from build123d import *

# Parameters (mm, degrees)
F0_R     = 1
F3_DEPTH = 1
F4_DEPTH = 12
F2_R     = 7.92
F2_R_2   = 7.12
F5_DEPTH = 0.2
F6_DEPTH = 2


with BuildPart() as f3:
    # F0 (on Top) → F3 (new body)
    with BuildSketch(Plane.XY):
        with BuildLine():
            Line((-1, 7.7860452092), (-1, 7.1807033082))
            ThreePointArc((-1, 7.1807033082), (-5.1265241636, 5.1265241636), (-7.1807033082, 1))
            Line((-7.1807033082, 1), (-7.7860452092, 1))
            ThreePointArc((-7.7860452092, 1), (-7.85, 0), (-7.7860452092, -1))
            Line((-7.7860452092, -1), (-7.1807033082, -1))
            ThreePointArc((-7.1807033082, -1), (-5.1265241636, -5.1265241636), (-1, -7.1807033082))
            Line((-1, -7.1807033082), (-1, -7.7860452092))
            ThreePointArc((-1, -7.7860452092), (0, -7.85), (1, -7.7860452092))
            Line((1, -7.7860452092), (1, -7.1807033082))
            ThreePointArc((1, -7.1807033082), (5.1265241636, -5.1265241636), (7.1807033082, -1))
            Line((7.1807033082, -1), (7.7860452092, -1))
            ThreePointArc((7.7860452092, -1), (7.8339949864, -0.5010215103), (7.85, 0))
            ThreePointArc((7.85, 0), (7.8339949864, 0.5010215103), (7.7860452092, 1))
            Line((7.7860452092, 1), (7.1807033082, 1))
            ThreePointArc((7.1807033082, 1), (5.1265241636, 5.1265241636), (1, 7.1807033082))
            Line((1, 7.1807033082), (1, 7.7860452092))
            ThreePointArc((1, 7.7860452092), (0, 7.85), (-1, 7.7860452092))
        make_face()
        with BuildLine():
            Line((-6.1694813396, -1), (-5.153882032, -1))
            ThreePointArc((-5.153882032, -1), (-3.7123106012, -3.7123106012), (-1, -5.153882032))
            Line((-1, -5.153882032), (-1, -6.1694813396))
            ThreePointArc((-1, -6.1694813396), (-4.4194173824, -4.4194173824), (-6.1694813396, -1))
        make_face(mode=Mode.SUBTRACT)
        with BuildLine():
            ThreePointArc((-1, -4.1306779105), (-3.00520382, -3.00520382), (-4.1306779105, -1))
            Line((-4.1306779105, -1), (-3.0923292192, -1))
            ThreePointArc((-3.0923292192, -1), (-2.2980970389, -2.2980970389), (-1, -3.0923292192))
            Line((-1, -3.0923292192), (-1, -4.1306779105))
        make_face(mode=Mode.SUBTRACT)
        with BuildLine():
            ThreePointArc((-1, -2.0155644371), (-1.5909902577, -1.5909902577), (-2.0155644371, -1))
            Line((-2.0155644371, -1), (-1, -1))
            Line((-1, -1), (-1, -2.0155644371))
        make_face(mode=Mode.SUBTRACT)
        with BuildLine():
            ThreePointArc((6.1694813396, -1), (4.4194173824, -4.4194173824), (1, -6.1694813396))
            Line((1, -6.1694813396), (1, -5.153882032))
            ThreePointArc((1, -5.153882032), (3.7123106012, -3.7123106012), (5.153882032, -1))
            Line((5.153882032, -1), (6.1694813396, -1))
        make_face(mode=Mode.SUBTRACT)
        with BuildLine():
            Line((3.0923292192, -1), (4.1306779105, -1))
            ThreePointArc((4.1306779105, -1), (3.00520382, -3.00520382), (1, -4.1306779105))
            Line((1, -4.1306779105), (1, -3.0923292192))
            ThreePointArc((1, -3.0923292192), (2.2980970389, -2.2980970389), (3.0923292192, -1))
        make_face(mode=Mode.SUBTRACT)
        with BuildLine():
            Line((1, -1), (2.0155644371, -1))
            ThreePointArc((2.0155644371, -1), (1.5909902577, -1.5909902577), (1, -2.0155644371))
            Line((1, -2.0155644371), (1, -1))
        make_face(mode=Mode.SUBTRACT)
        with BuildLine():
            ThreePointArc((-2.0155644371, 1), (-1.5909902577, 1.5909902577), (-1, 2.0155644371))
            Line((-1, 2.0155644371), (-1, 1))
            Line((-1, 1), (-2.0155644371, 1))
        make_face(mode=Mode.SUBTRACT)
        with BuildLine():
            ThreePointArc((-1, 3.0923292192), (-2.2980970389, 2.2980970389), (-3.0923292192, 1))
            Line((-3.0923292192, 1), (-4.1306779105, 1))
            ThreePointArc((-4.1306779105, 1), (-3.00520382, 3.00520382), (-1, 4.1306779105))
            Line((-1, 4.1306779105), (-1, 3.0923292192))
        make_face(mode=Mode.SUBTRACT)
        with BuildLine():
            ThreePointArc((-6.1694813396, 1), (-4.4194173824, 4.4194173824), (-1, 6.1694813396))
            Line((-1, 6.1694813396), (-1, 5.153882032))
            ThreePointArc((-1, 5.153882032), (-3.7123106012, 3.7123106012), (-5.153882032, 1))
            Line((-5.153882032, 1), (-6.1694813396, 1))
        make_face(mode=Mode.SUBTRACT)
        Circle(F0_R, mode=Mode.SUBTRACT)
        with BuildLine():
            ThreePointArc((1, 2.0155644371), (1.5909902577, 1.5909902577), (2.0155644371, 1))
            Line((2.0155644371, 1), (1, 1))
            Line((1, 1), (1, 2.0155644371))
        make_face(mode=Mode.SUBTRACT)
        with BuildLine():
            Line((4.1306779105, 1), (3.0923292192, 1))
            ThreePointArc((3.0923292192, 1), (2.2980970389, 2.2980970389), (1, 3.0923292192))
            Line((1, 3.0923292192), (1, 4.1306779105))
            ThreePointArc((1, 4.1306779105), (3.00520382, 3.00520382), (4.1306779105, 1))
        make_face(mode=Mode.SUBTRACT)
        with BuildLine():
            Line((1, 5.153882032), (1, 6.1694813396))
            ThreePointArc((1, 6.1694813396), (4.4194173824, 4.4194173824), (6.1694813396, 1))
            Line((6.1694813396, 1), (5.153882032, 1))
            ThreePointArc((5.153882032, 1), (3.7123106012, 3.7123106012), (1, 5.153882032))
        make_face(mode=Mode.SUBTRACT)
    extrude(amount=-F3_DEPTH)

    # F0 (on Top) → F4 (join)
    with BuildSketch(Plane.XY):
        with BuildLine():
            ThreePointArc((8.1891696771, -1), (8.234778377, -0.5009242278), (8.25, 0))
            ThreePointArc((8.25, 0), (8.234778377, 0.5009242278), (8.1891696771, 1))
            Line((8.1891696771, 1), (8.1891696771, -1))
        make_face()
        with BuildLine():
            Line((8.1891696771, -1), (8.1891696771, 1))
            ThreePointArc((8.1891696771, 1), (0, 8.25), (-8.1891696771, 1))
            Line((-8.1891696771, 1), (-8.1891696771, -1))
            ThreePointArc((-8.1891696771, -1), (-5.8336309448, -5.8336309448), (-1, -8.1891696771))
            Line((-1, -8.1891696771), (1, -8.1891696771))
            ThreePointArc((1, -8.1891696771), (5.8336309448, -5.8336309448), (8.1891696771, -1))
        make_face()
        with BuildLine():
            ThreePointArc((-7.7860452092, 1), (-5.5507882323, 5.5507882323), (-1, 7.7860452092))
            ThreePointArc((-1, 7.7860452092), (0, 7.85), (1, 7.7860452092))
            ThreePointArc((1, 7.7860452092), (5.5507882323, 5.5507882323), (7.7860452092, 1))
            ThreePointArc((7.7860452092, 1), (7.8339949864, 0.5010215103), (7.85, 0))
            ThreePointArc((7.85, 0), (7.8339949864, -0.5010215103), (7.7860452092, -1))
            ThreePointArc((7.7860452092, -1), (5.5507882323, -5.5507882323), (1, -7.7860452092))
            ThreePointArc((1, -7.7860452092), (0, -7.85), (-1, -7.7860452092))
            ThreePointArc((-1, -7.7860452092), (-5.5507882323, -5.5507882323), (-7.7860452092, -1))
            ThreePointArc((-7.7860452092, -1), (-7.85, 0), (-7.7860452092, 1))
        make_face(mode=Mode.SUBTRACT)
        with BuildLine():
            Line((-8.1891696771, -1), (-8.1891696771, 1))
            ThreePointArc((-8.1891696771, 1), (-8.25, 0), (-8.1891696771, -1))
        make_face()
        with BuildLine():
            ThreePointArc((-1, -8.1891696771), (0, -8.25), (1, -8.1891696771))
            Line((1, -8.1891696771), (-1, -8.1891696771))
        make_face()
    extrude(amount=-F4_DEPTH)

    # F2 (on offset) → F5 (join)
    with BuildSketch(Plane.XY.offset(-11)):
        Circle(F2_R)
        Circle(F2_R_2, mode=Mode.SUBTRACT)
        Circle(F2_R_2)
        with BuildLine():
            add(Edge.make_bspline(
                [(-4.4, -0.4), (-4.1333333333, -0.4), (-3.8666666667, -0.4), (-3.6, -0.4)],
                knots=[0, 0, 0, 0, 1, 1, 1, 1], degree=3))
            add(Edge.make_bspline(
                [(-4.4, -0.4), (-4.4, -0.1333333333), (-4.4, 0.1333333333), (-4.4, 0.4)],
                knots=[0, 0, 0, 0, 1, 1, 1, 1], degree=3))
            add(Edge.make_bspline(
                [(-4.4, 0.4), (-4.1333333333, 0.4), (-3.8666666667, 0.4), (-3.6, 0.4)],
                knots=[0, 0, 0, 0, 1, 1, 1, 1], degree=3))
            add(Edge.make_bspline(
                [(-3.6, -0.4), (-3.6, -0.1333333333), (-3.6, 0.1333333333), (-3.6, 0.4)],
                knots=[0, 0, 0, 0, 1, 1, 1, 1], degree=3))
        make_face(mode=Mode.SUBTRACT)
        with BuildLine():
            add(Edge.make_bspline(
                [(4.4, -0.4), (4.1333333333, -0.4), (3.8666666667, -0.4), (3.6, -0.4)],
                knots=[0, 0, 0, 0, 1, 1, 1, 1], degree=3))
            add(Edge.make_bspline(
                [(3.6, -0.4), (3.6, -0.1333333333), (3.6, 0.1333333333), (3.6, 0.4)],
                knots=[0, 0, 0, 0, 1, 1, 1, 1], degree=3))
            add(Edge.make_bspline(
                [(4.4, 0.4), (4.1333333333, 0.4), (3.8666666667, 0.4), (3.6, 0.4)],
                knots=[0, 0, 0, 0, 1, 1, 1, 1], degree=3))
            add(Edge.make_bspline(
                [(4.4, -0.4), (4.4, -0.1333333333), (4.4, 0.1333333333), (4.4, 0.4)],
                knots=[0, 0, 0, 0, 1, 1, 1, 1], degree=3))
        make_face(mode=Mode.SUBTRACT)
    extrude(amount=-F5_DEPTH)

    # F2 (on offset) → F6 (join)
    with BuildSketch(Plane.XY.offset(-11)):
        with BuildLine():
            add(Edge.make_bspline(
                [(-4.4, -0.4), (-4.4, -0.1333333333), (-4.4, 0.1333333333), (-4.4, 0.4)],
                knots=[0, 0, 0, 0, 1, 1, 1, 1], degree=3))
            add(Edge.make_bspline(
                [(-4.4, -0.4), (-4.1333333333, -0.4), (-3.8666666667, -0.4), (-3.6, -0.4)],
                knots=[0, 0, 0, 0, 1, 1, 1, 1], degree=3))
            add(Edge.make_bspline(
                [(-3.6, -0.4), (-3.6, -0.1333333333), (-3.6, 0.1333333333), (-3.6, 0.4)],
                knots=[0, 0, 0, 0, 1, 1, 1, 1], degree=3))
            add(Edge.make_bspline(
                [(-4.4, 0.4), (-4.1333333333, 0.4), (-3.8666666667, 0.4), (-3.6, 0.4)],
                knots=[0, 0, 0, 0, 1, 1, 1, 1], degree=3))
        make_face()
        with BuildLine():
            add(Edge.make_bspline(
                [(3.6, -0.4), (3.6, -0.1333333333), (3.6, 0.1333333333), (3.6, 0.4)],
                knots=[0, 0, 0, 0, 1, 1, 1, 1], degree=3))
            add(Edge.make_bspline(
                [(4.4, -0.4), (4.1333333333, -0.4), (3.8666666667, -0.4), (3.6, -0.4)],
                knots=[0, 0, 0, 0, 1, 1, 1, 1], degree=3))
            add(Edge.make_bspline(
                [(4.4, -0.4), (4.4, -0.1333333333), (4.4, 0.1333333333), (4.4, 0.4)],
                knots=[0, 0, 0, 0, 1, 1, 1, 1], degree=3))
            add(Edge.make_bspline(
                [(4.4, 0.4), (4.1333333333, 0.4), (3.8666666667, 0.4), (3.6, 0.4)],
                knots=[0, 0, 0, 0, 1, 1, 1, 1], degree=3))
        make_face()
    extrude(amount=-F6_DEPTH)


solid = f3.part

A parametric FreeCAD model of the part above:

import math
import FreeCAD as App
import Part
import Sketcher

doc = App.newDocument("Part")
body = doc.addObject("PartDesign::Body", "Body")

# Sketch on XY plane
sketch1 = body.newObject("Sketcher::SketchObject", "Sketch")
sketch1.AttachmentSupport = (doc.getObject("XY_Plane"), [""])
sketch1.MapMode = "FlatFace"
sketch1.addGeometry(Part.LineSegment(App.Vector(-1, 7.786045, 0), App.Vector(-1, 7.180703, 0)), False)
sketch1.addGeometry(Part.ArcOfCircle(Part.Circle(App.Vector(0, 0, 0), App.Vector(0, 0, 1), 7.25), math.radians(97.928142), math.radians(172.071858)), False)
sketch1.addGeometry(Part.LineSegment(App.Vector(-7.180703, 1, 0), App.Vector(-7.786045, 1, 0)), False)
sketch1.addGeometry(Part.ArcOfCircle(Part.Circle(App.Vector(0, 0, 0), App.Vector(0, 0, 1), 7.85), math.radians(172.681288), math.radians(187.318712)), False)
sketch1.addGeometry(Part.LineSegment(App.Vector(-7.786045, -1, 0), App.Vector(-7.180703, -1, 0)), False)
sketch1.addGeometry(Part.ArcOfCircle(Part.Circle(App.Vector(0, 0, 0), App.Vector(0, 0, 1), 7.25), math.radians(-172.071858), math.radians(-97.928142)), False)
sketch1.addGeometry(Part.LineSegment(App.Vector(-1, -7.180703, 0), App.Vector(-1, -7.786045, 0)), False)
sketch1.addGeometry(Part.ArcOfCircle(Part.Circle(App.Vector(0, 0, 0), App.Vector(0, 0, 1), 7.85), math.radians(-97.318712), math.radians(-82.681288)), False)
sketch1.addGeometry(Part.LineSegment(App.Vector(1, -7.786045, 0), App.Vector(1, -7.180703, 0)), False)
sketch1.addGeometry(Part.ArcOfCircle(Part.Circle(App.Vector(0, 0, 0), App.Vector(0, 0, 1), 7.25), math.radians(-82.071858), math.radians(-7.928142)), False)
sketch1.addGeometry(Part.LineSegment(App.Vector(7.180703, -1, 0), App.Vector(7.786045, -1, 0)), False)
sketch1.addGeometry(Part.ArcOfCircle(Part.Circle(App.Vector(0, 0, 0), App.Vector(0, 0, 1), 7.85), math.radians(-7.318712), math.radians(0)), False)
sketch1.addGeometry(Part.ArcOfCircle(Part.Circle(App.Vector(0, 0, 0), App.Vector(0, 0, 1), 7.85), math.radians(0), math.radians(7.318712)), False)
sketch1.addGeometry(Part.LineSegment(App.Vector(7.786045, 1, 0), App.Vector(7.180703, 1, 0)), False)
sketch1.addGeometry(Part.ArcOfCircle(Part.Circle(App.Vector(0, 0, 0), App.Vector(0, 0, 1), 7.25), math.radians(7.928142), math.radians(82.071858)), False)
sketch1.addGeometry(Part.LineSegment(App.Vector(1, 7.180703, 0), App.Vector(1, 7.786045, 0)), False)
sketch1.addGeometry(Part.ArcOfCircle(Part.Circle(App.Vector(0, 0, 0), App.Vector(0, 0, 1), 7.85), math.radians(82.681288), math.radians(97.318712)), False)
sketch1.addGeometry(Part.ArcOfCircle(Part.Circle(App.Vector(0, 0, 0), App.Vector(0, 0, 1), 6.25), math.radians(-170.793104), math.radians(-99.206896)), False)
sketch1.addGeometry(Part.LineSegment(App.Vector(-6.169481, -1, 0), App.Vector(-5.153882, -1, 0)), False)
sketch1.addGeometry(Part.ArcOfCircle(Part.Circle(App.Vector(0, 0, 0), App.Vector(0, 0, 1), 5.25), math.radians(-169.019425), math.radians(-100.980575)), False)
sketch1.addGeometry(Part.LineSegment(App.Vector(-1, -5.153882, 0), App.Vector(-1, -6.169481, 0)), False)
sketch1.addGeometry(Part.LineSegment(App.Vector(-1, -3.092329, 0), App.Vector(-1, -4.130678, 0)), False)
sketch1.addGeometry(Part.ArcOfCircle(Part.Circle(App.Vector(0, 0, 0), App.Vector(0, 0, 1), 4.25), math.radians(-166.391039), math.radians(-103.608961)), False)
sketch1.addGeometry(Part.LineSegment(App.Vector(-4.130678, -1, 0), App.Vector(-3.092329, -1, 0)), False)
sketch1.addGeometry(Part.ArcOfCircle(Part.Circle(App.Vector(0, 0, 0), App.Vector(0, 0, 1), 3.25), math.radians(-162.079787), math.radians(-107.920213)), False)
sketch1.addGeometry(Part.LineSegment(App.Vector(-1, -1, 0), App.Vector(-1, -2.015564, 0)), False)
sketch1.addGeometry(Part.ArcOfCircle(Part.Circle(App.Vector(0, 0, 0), App.Vector(0, 0, 1), 2.25), math.radians(-153.6122), math.radians(-116.3878)), False)
sketch1.addGeometry(Part.LineSegment(App.Vector(-2.015564, -1, 0), App.Vector(-1, -1, 0)), False)
sketch1.addGeometry(Part.LineSegment(App.Vector(5.153882, -1, 0), App.Vector(6.169481, -1, 0)), False)
sketch1.addGeometry(Part.ArcOfCircle(Part.Circle(App.Vector(0, 0, 0), App.Vector(0, 0, 1), 6.25), math.radians(-80.793104), math.radians(-9.206896)), False)
sketch1.addGeometry(Part.LineSegment(App.Vector(1, -6.169481, 0), App.Vector(1, -5.153882, 0)), False)
sketch1.addGeometry(Part.ArcOfCircle(Part.Circle(App.Vector(0, 0, 0), App.Vector(0, 0, 1), 5.25), math.radians(-79.019425), math.radians(-10.980575)), False)
sketch1.addGeometry(Part.ArcOfCircle(Part.Circle(App.Vector(0, 0, 0), App.Vector(0, 0, 1), 3.25), math.radians(-72.079787), math.radians(-17.920213)), False)
sketch1.addGeometry(Part.LineSegment(App.Vector(3.092329, -1, 0), App.Vector(4.130678, -1, 0)), False)
sketch1.addGeometry(Part.ArcOfCircle(Part.Circle(App.Vector(0, 0, 0), App.Vector(0, 0, 1), 4.25), math.radians(-76.391039), math.radians(-13.608961)), False)
sketch1.addGeometry(Part.LineSegment(App.Vector(1, -4.130678, 0), App.Vector(1, -3.092329, 0)), False)
sketch1.addGeometry(Part.LineSegment(App.Vector(1, -2.015564, 0), App.Vector(1, -1, 0)), False)
sketch1.addGeometry(Part.LineSegment(App.Vector(1, -1, 0), App.Vector(2.015564, -1, 0)), False)
sketch1.addGeometry(Part.ArcOfCircle(Part.Circle(App.Vector(0, 0, 0), App.Vector(0, 0, 1), 2.25), math.radians(-63.6122), math.radians(-26.3878)), False)
sketch1.addGeometry(Part.LineSegment(App.Vector(-1, 1, 0), App.Vector(-2.015564, 1, 0)), False)
sketch1.addGeometry(Part.ArcOfCircle(Part.Circle(App.Vector(0, 0, 0), App.Vector(0, 0, 1), 2.25), math.radians(116.3878), math.radians(153.6122)), False)
sketch1.addGeometry(Part.LineSegment(App.Vector(-1, 2.015564, 0), App.Vector(-1, 1, 0)), False)
sketch1.addGeometry(Part.LineSegment(App.Vector(-1, 4.130678, 0), App.Vector(-1, 3.092329, 0)), False)
sketch1.addGeometry(Part.ArcOfCircle(Part.Circle(App.Vector(0, 0, 0), App.Vector(0, 0, 1), 3.25), math.radians(107.920213), math.radians(162.079787)), False)
sketch1.addGeometry(Part.LineSegment(App.Vector(-3.092329, 1, 0), App.Vector(-4.130678, 1, 0)), False)
sketch1.addGeometry(Part.ArcOfCircle(Part.Circle(App.Vector(0, 0, 0), App.Vector(0, 0, 1), 4.25), math.radians(103.608961), math.radians(166.391039)), False)
sketch1.addGeometry(Part.LineSegment(App.Vector(-5.153882, 1, 0), App.Vector(-6.169481, 1, 0)), False)
sketch1.addGeometry(Part.ArcOfCircle(Part.Circle(App.Vector(0, 0, 0), App.Vector(0, 0, 1), 6.25), math.radians(99.206896), math.radians(170.793104)), False)
sketch1.addGeometry(Part.LineSegment(App.Vector(-1, 6.169481, 0), App.Vector(-1, 5.153882, 0)), False)
sketch1.addGeometry(Part.ArcOfCircle(Part.Circle(App.Vector(0, 0, 0), App.Vector(0, 0, 1), 5.25), math.radians(100.980575), math.radians(169.019425)), False)
sketch1.addGeometry(Part.Circle(App.Vector(0, 0, 0), App.Vector(0, 0, 1), 1), False)
sketch1.addGeometry(Part.LineSegment(App.Vector(1, 1, 0), App.Vector(1, 2.015564, 0)), False)
sketch1.addGeometry(Part.ArcOfCircle(Part.Circle(App.Vector(0, 0, 0), App.Vector(0, 0, 1), 2.25), math.radians(26.3878), math.radians(63.6122)), False)
sketch1.addGeometry(Part.LineSegment(App.Vector(2.015564, 1, 0), App.Vector(1, 1, 0)), False)
sketch1.addGeometry(Part.ArcOfCircle(Part.Circle(App.Vector(0, 0, 0), App.Vector(0, 0, 1), 4.25), math.radians(13.608961), math.radians(76.391039)), False)
sketch1.addGeometry(Part.LineSegment(App.Vector(4.130678, 1, 0), App.Vector(3.092329, 1, 0)), False)
sketch1.addGeometry(Part.ArcOfCircle(Part.Circle(App.Vector(0, 0, 0), App.Vector(0, 0, 1), 3.25), math.radians(17.920213), math.radians(72.079787)), False)
sketch1.addGeometry(Part.LineSegment(App.Vector(1, 3.092329, 0), App.Vector(1, 4.130678, 0)), False)
sketch1.addGeometry(Part.ArcOfCircle(Part.Circle(App.Vector(0, 0, 0), App.Vector(0, 0, 1), 5.25), math.radians(10.980575), math.radians(79.019425)), False)
sketch1.addGeometry(Part.LineSegment(App.Vector(1, 5.153882, 0), App.Vector(1, 6.169481, 0)), False)
sketch1.addGeometry(Part.ArcOfCircle(Part.Circle(App.Vector(0, 0, 0), App.Vector(0, 0, 1), 6.25), math.radians(9.206896), math.radians(80.793104)), False)
sketch1.addGeometry(Part.LineSegment(App.Vector(6.169481, 1, 0), App.Vector(5.153882, 1, 0)), False)
sketch1.addConstraint(Sketcher.Constraint("Coincident", 0, 2, 1, 1))
sketch1.addConstraint(Sketcher.Constraint("Coincident", 1, 2, 2, 1))
sketch1.addConstraint(Sketcher.Constraint("Coincident", 2, 2, 3, 1))
sketch1.addConstraint(Sketcher.Constraint("Coincident", 3, 2, 4, 1))
sketch1.addConstraint(Sketcher.Constraint("Coincident", 4, 2, 5, 1))
sketch1.addConstraint(Sketcher.Constraint("Coincident", 5, 2, 6, 1))
sketch1.addConstraint(Sketcher.Constraint("Coincident", 6, 2, 7, 1))
sketch1.addConstraint(Sketcher.Constraint("Coincident", 7, 2, 8, 1))
sketch1.addConstraint(Sketcher.Constraint("Coincident", 8, 2, 9, 1))
sketch1.addConstraint(Sketcher.Constraint("Coincident", 9, 2, 10, 1))
sketch1.addConstraint(Sketcher.Constraint("Coincident", 10, 2, 11, 1))
sketch1.addConstraint(Sketcher.Constraint("Tangent", 11, 2, 12, 1))
sketch1.addConstraint(Sketcher.Constraint("Coincident", 12, 2, 13, 1))
sketch1.addConstraint(Sketcher.Constraint("Coincident", 13, 2, 14, 1))
sketch1.addConstraint(Sketcher.Constraint("Coincident", 14, 2, 15, 1))
sketch1.addConstraint(Sketcher.Constraint("Coincident", 15, 2, 16, 1))
sketch1.addConstraint(Sketcher.Constraint("Coincident", 16, 2, 0, 1))
sketch1.addConstraint(Sketcher.Constraint("Coincident", 17, 1, 18, 1))
sketch1.addConstraint(Sketcher.Constraint("Coincident", 18, 2, 19, 1))
sketch1.addConstraint(Sketcher.Constraint("Coincident", 19, 2, 20, 1))
sketch1.addConstraint(Sketcher.Constraint("Coincident", 20, 2, 17, 2))
sketch1.addConstraint(Sketcher.Constraint("Coincident", 21, 2, 22, 2))
sketch1.addConstraint(Sketcher.Constraint("Coincident", 22, 1, 23, 1))
sketch1.addConstraint(Sketcher.Constraint("Coincident", 23, 2, 24, 1))
sketch1.addConstraint(Sketcher.Constraint("Coincident", 24, 2, 21, 1))
sketch1.addConstraint(Sketcher.Constraint("Coincident", 25, 2, 26, 2))
sketch1.addConstraint(Sketcher.Constraint("Coincident", 26, 1, 27, 1))
sketch1.addConstraint(Sketcher.Constraint("Coincident", 27, 2, 25, 1))
sketch1.addConstraint(Sketcher.Constraint("Coincident", 28, 2, 29, 2))
sketch1.addConstraint(Sketcher.Constraint("Coincident", 29, 1, 30, 1))
sketch1.addConstraint(Sketcher.Constraint("Coincident", 30, 2, 31, 1))
sketch1.addConstraint(Sketcher.Constraint("Coincident", 31, 2, 28, 1))
sketch1.addConstraint(Sketcher.Constraint("Coincident", 32, 2, 33, 1))
sketch1.addConstraint(Sketcher.Constraint("Coincident", 33, 2, 34, 2))
sketch1.addConstraint(Sketcher.Constraint("Coincident", 34, 1, 35, 1))
sketch1.addConstraint(Sketcher.Constraint("Coincident", 35, 2, 32, 1))
sketch1.addConstraint(Sketcher.Constraint("Coincident", 36, 2, 37, 1))
sketch1.addConstraint(Sketcher.Constraint("Coincident", 37, 2, 38, 2))
sketch1.addConstraint(Sketcher.Constraint("Coincident", 38, 1, 36, 1))
sketch1.addConstraint(Sketcher.Constraint("Coincident", 39, 2, 40, 2))
sketch1.addConstraint(Sketcher.Constraint("Coincident", 40, 1, 41, 1))
sketch1.addConstraint(Sketcher.Constraint("Coincident", 41, 2, 39, 1))
sketch1.addConstraint(Sketcher.Constraint("Coincident", 42, 2, 43, 1))
sketch1.addConstraint(Sketcher.Constraint("Coincident", 43, 2, 44, 1))
sketch1.addConstraint(Sketcher.Constraint("Coincident", 44, 2, 45, 2))
sketch1.addConstraint(Sketcher.Constraint("Coincident", 45, 1, 42, 1))
sketch1.addConstraint(Sketcher.Constraint("Coincident", 46, 2, 47, 2))
sketch1.addConstraint(Sketcher.Constraint("Coincident", 47, 1, 48, 1))
sketch1.addConstraint(Sketcher.Constraint("Coincident", 48, 2, 49, 1))
sketch1.addConstraint(Sketcher.Constraint("Coincident", 49, 2, 46, 1))
sketch1.addConstraint(Sketcher.Constraint("Coincident", 51, 2, 52, 2))
sketch1.addConstraint(Sketcher.Constraint("Coincident", 52, 1, 53, 1))
sketch1.addConstraint(Sketcher.Constraint("Coincident", 53, 2, 51, 1))
sketch1.addConstraint(Sketcher.Constraint("Coincident", 54, 1, 55, 1))
sketch1.addConstraint(Sketcher.Constraint("Coincident", 55, 2, 56, 1))
sketch1.addConstraint(Sketcher.Constraint("Coincident", 56, 2, 57, 1))
sketch1.addConstraint(Sketcher.Constraint("Coincident", 57, 2, 54, 2))
sketch1.addConstraint(Sketcher.Constraint("Coincident", 58, 2, 59, 1))
sketch1.addConstraint(Sketcher.Constraint("Coincident", 59, 2, 60, 2))
sketch1.addConstraint(Sketcher.Constraint("Coincident", 60, 1, 61, 1))
sketch1.addConstraint(Sketcher.Constraint("Coincident", 61, 2, 58, 1))
sketch1.addConstraint(Sketcher.Constraint("Vertical", 0))
sketch1.addConstraint(Sketcher.Constraint("Horizontal", 2))
sketch1.addConstraint(Sketcher.Constraint("Horizontal", 4))
sketch1.addConstraint(Sketcher.Constraint("Vertical", 6))
sketch1.addConstraint(Sketcher.Constraint("Vertical", 8))
sketch1.addConstraint(Sketcher.Constraint("Horizontal", 10))
sketch1.addConstraint(Sketcher.Constraint("Horizontal", 13))
sketch1.addConstraint(Sketcher.Constraint("Vertical", 15))
sketch1.addConstraint(Sketcher.Constraint("Horizontal", 18))
sketch1.addConstraint(Sketcher.Constraint("Vertical", 20))
sketch1.addConstraint(Sketcher.Constraint("Vertical", 21))
sketch1.addConstraint(Sketcher.Constraint("Horizontal", 23))
sketch1.addConstraint(Sketcher.Constraint("Vertical", 25))
sketch1.addConstraint(Sketcher.Constraint("Horizontal", 27))
sketch1.addConstraint(Sketcher.Constraint("Horizontal", 28))
sketch1.addConstraint(Sketcher.Constraint("Vertical", 30))
sketch1.addConstraint(Sketcher.Constraint("Horizontal", 33))
sketch1.addConstraint(Sketcher.Constraint("Vertical", 35))
sketch1.addConstraint(Sketcher.Constraint("Vertical", 36))
sketch1.addConstraint(Sketcher.Constraint("Horizontal", 37))
sketch1.addConstraint(Sketcher.Constraint("Horizontal", 39))
sketch1.addConstraint(Sketcher.Constraint("Vertical", 41))
sketch1.addConstraint(Sketcher.Constraint("Vertical", 42))
sketch1.addConstraint(Sketcher.Constraint("Horizontal", 44))
sketch1.addConstraint(Sketcher.Constraint("Horizontal", 46))
sketch1.addConstraint(Sketcher.Constraint("Vertical", 48))
sketch1.addConstraint(Sketcher.Constraint("Vertical", 51))
sketch1.addConstraint(Sketcher.Constraint("Horizontal", 53))
sketch1.addConstraint(Sketcher.Constraint("Horizontal", 55))
sketch1.addConstraint(Sketcher.Constraint("Vertical", 57))
sketch1.addConstraint(Sketcher.Constraint("Vertical", 59))
sketch1.addConstraint(Sketcher.Constraint("Horizontal", 61))
sketch1.addConstraint(Sketcher.Constraint("Coincident", 1, 3, -1, 1))
sketch1.addConstraint(Sketcher.Constraint("Coincident", 3, 3, -1, 1))
sketch1.addConstraint(Sketcher.Constraint("Coincident", 5, 3, -1, 1))
sketch1.addConstraint(Sketcher.Constraint("Coincident", 7, 3, -1, 1))
sketch1.addConstraint(Sketcher.Constraint("Coincident", 9, 3, -1, 1))
sketch1.addConstraint(Sketcher.Constraint("Coincident", 11, 3, -1, 1))
sketch1.addConstraint(Sketcher.Constraint("Coincident", 14, 3, -1, 1))
sketch1.addConstraint(Sketcher.Constraint("Coincident", 16, 3, -1, 1))
sketch1.addConstraint(Sketcher.Constraint("Coincident", 17, 3, -1, 1))
sketch1.addConstraint(Sketcher.Constraint("Coincident", 19, 3, -1, 1))
sketch1.addConstraint(Sketcher.Constraint("Coincident", 22, 3, -1, 1))
sketch1.addConstraint(Sketcher.Constraint("Coincident", 24, 3, -1, 1))
sketch1.addConstraint(Sketcher.Constraint("Coincident", 26, 3, -1, 1))
sketch1.addConstraint(Sketcher.Constraint("Coincident", 29, 3, -1, 1))
sketch1.addConstraint(Sketcher.Constraint("Coincident", 31, 3, -1, 1))
sketch1.addConstraint(Sketcher.Constraint("Coincident", 32, 3, -1, 1))
sketch1.addConstraint(Sketcher.Constraint("Coincident", 34, 3, -1, 1))
sketch1.addConstraint(Sketcher.Constraint("Coincident", 38, 3, -1, 1))
sketch1.addConstraint(Sketcher.Constraint("Coincident", 40, 3, -1, 1))
sketch1.addConstraint(Sketcher.Constraint("Coincident", 43, 3, -1, 1))
sketch1.addConstraint(Sketcher.Constraint("Coincident", 45, 3, -1, 1))
sketch1.addConstraint(Sketcher.Constraint("Coincident", 47, 3, -1, 1))
sketch1.addConstraint(Sketcher.Constraint("Coincident", 49, 3, -1, 1))
sketch1.addConstraint(Sketcher.Constraint("Coincident", 50, 3, -1, 1))
sketch1.addConstraint(Sketcher.Constraint("Coincident", 52, 3, -1, 1))
sketch1.addConstraint(Sketcher.Constraint("Coincident", 54, 3, -1, 1))
sketch1.addConstraint(Sketcher.Constraint("Coincident", 56, 3, -1, 1))
sketch1.addConstraint(Sketcher.Constraint("Coincident", 58, 3, -1, 1))
sketch1.addConstraint(Sketcher.Constraint("Coincident", 60, 3, -1, 1))
sketch1.addConstraint(Sketcher.Constraint("Equal", 1, 5))
sketch1.addConstraint(Sketcher.Constraint("Equal", 3, 7))
sketch1.addConstraint(Sketcher.Constraint("Equal", 5, 9))
sketch1.addConstraint(Sketcher.Constraint("Equal", 7, 11))
sketch1.addConstraint(Sketcher.Constraint("Equal", 11, 12))
sketch1.addConstraint(Sketcher.Constraint("Equal", 9, 14))
sketch1.addConstraint(Sketcher.Constraint("Equal", 12, 16))
sketch1.addConstraint(Sketcher.Constraint("Equal", 17, 29))
sketch1.addConstraint(Sketcher.Constraint("Equal", 19, 31))
sketch1.addConstraint(Sketcher.Constraint("Equal", 24, 32))
sketch1.addConstraint(Sketcher.Constraint("Equal", 22, 34))
sketch1.addConstraint(Sketcher.Constraint("Equal", 26, 38))
sketch1.addConstraint(Sketcher.Constraint("Equal", 38, 40))
sketch1.addConstraint(Sketcher.Constraint("Equal", 32, 43))
sketch1.addConstraint(Sketcher.Constraint("Equal", 34, 45))
sketch1.addConstraint(Sketcher.Constraint("Equal", 29, 47))
sketch1.addConstraint(Sketcher.Constraint("Equal", 31, 49))
sketch1.addConstraint(Sketcher.Constraint("Equal", 40, 52))
sketch1.addConstraint(Sketcher.Constraint("Equal", 45, 54))
sketch1.addConstraint(Sketcher.Constraint("Equal", 43, 56))
sketch1.addConstraint(Sketcher.Constraint("Equal", 49, 58))
sketch1.addConstraint(Sketcher.Constraint("Equal", 47, 60))
sketch1.addConstraint(Sketcher.Constraint("Symmetric", 36, 2, 41, 2, -1, 1))
sketch1.addConstraint(Sketcher.Constraint("Symmetric", 27, 2, 53, 2, -1, 1))
sketch1.addConstraint(Sketcher.Constraint("Symmetric", 27, 2, 36, 2, -2))
sketch1.addConstraint(Sketcher.Constraint("PointOnObject", 11, 2, -1))
sketch1.addConstraint(Sketcher.Constraint("Horizontal", 6, 2, 7, 2))
sketch1.addConstraint(Sketcher.Constraint("Horizontal", 4, 2, 9, 2))
sketch1.addConstraint(Sketcher.Constraint("Horizontal", 2, 2, 12, 2))
sketch1.addConstraint(Sketcher.Constraint("Horizontal", 0, 2, 14, 2))
sketch1.addConstraint(Sketcher.Constraint("Horizontal", 10, 2, 17, 1))
sketch1.addConstraint(Sketcher.Constraint("Horizontal", 18, 2, 22, 1))
sketch1.addConstraint(Sketcher.Constraint("Horizontal", 23, 2, 26, 1))
sketch1.addConstraint(Sketcher.Constraint("Horizontal", 27, 2, 28, 2))
sketch1.addConstraint(Sketcher.Constraint("Horizontal", 20, 2, 29, 1))
sketch1.addConstraint(Sketcher.Constraint("Horizontal", 31, 2, 32, 2))
sketch1.addConstraint(Sketcher.Constraint("Horizontal", 21, 2, 34, 1))
sketch1.addConstraint(Sketcher.Constraint("Horizontal", 13, 2, 39, 2))
sketch1.addConstraint(Sketcher.Constraint("Horizontal", 41, 2, 43, 2))
sketch1.addConstraint(Sketcher.Constraint("Horizontal", 44, 2, 46, 2))
sketch1.addConstraint(Sketcher.Constraint("Horizontal", 53, 2, 54, 1))
sketch1.addConstraint(Sketcher.Constraint("Horizontal", 42, 2, 56, 2))
sketch1.addConstraint(Sketcher.Constraint("Horizontal", 48, 2, 58, 2))
sketch1.addConstraint(Sketcher.Constraint("Horizontal", 55, 2, 60, 1))
sketch1.addConstraint(Sketcher.Constraint("Vertical", 0, 2, 5, 2))
sketch1.addConstraint(Sketcher.Constraint("Vertical", 16, 2, 19, 2))
sketch1.addConstraint(Sketcher.Constraint("Vertical", 20, 2, 21, 2))
sketch1.addConstraint(Sketcher.Constraint("Vertical", 24, 2, 25, 2))
sketch1.addConstraint(Sketcher.Constraint("Vertical", 41, 2, 42, 2))
sketch1.addConstraint(Sketcher.Constraint("Vertical", 45, 1, 47, 1))
sketch1.addConstraint(Sketcher.Constraint("Equal", 61, 20))
sketch1.addConstraint(Sketcher.Constraint("Diameter", 50, 2.0))
sketch1.addConstraint(Sketcher.Constraint("Radius", 1, 7.25))
sketch1.addConstraint(Sketcher.Constraint("Radius", 3, 7.85))
sketch1.addConstraint(Sketcher.Constraint("Radius", 17, 6.25))
sketch1.addConstraint(Sketcher.Constraint("Radius", 19, 5.25))
sketch1.addConstraint(Sketcher.Constraint("Radius", 22, 4.25))
sketch1.addConstraint(Sketcher.Constraint("Radius", 24, 3.25))
sketch1.addConstraint(Sketcher.Constraint("Radius", 26, 2.25))
sketch1.addConstraint(Sketcher.Constraint("DistanceX", 0, 2, -1, 1, 1.0))
pad1 = body.newObject("PartDesign::Pad", "Pad")
pad1.Profile = sketch1
pad1.Length = 1
pad1.Reversed = True

# Sketch on XY plane
sketch2 = body.newObject("Sketcher::SketchObject", "Sketch001")
sketch2.AttachmentSupport = (doc.getObject("XY_Plane"), [""])
sketch2.MapMode = "FlatFace"
sketch2.addGeometry(Part.ArcOfCircle(Part.Circle(App.Vector(0, 0, 0), App.Vector(0, 0, 1), 8.25), math.radians(-6.962063), math.radians(0)), False)
sketch2.addGeometry(Part.ArcOfCircle(Part.Circle(App.Vector(0, 0, 0), App.Vector(0, 0, 1), 8.25), math.radians(0), math.radians(6.962063)), False)
sketch2.addGeometry(Part.ArcOfCircle(Part.Circle(App.Vector(0, 0, 0), App.Vector(0, 0, 1), 8.25), math.radians(6.962063), math.radians(173.037937)), False)
sketch2.addGeometry(Part.ArcOfCircle(Part.Circle(App.Vector(0, 0, 0), App.Vector(0, 0, 1), 8.25), math.radians(173.037937), math.radians(186.962063)), False)
sketch2.addGeometry(Part.ArcOfCircle(Part.Circle(App.Vector(0, 0, 0), App.Vector(0, 0, 1), 8.25), math.radians(-173.037937), math.radians(-96.962063)), False)
sketch2.addGeometry(Part.ArcOfCircle(Part.Circle(App.Vector(0, 0, 0), App.Vector(0, 0, 1), 8.25), math.radians(-96.962063), math.radians(-83.037937)), False)
sketch2.addGeometry(Part.ArcOfCircle(Part.Circle(App.Vector(0, 0, 0), App.Vector(0, 0, 1), 8.25), math.radians(-83.037937), math.radians(-6.962063)), False)
sketch2.addGeometry(Part.ArcOfCircle(Part.Circle(App.Vector(0, 0, 0), App.Vector(0, 0, 1), 7.85), math.radians(172.681288), math.radians(187.318712)), False)
sketch2.addGeometry(Part.ArcOfCircle(Part.Circle(App.Vector(0, 0, 0), App.Vector(0, 0, 1), 7.85), math.radians(97.318712), math.radians(172.681288)), False)
sketch2.addGeometry(Part.ArcOfCircle(Part.Circle(App.Vector(0, 0, 0), App.Vector(0, 0, 1), 7.85), math.radians(82.681288), math.radians(97.318712)), False)
sketch2.addGeometry(Part.ArcOfCircle(Part.Circle(App.Vector(0, 0, 0), App.Vector(0, 0, 1), 7.85), math.radians(7.318712), math.radians(82.681288)), False)
sketch2.addGeometry(Part.ArcOfCircle(Part.Circle(App.Vector(0, 0, 0), App.Vector(0, 0, 1), 7.85), math.radians(0), math.radians(7.318712)), False)
sketch2.addGeometry(Part.ArcOfCircle(Part.Circle(App.Vector(0, 0, 0), App.Vector(0, 0, 1), 7.85), math.radians(-7.318712), math.radians(0)), False)
sketch2.addGeometry(Part.ArcOfCircle(Part.Circle(App.Vector(0, 0, 0), App.Vector(0, 0, 1), 7.85), math.radians(-82.681288), math.radians(-7.318712)), False)
sketch2.addGeometry(Part.ArcOfCircle(Part.Circle(App.Vector(0, 0, 0), App.Vector(0, 0, 1), 7.85), math.radians(-97.318712), math.radians(-82.681288)), False)
sketch2.addGeometry(Part.ArcOfCircle(Part.Circle(App.Vector(0, 0, 0), App.Vector(0, 0, 1), 7.85), math.radians(-172.681288), math.radians(-97.318712)), False)
sketch2.addConstraint(Sketcher.Constraint("Tangent", 0, 2, 1, 1))
sketch2.addConstraint(Sketcher.Constraint("Tangent", 1, 2, 2, 1))
sketch2.addConstraint(Sketcher.Constraint("Tangent", 2, 2, 3, 1))
sketch2.addConstraint(Sketcher.Constraint("Tangent", 3, 2, 4, 1))
sketch2.addConstraint(Sketcher.Constraint("Tangent", 4, 2, 5, 1))
sketch2.addConstraint(Sketcher.Constraint("Tangent", 5, 2, 6, 1))
sketch2.addConstraint(Sketcher.Constraint("Tangent", 6, 2, 0, 1))
sketch2.addConstraint(Sketcher.Constraint("Tangent", 7, 1, 8, 2))
sketch2.addConstraint(Sketcher.Constraint("Tangent", 8, 1, 9, 2))
sketch2.addConstraint(Sketcher.Constraint("Tangent", 9, 1, 10, 2))
sketch2.addConstraint(Sketcher.Constraint("Tangent", 10, 1, 11, 2))
sketch2.addConstraint(Sketcher.Constraint("Tangent", 11, 1, 12, 2))
sketch2.addConstraint(Sketcher.Constraint("Tangent", 12, 1, 13, 2))
sketch2.addConstraint(Sketcher.Constraint("Tangent", 13, 1, 14, 2))
sketch2.addConstraint(Sketcher.Constraint("Tangent", 14, 1, 15, 2))
sketch2.addConstraint(Sketcher.Constraint("Tangent", 15, 1, 7, 2))
sketch2.addConstraint(Sketcher.Constraint("Coincident", 0, 3, -1, 1))
sketch2.addConstraint(Sketcher.Constraint("Coincident", 2, 3, -1, 1))
sketch2.addConstraint(Sketcher.Constraint("Coincident", 4, 3, -1, 1))
sketch2.addConstraint(Sketcher.Constraint("Coincident", 7, 3, -1, 1))
sketch2.addConstraint(Sketcher.Constraint("Coincident", 9, 3, -1, 1))
sketch2.addConstraint(Sketcher.Constraint("Coincident", 11, 3, -1, 1))
sketch2.addConstraint(Sketcher.Constraint("Coincident", 13, 3, -1, 1))
sketch2.addConstraint(Sketcher.Constraint("PointOnObject", 0, 2, -1))
sketch2.addConstraint(Sketcher.Constraint("PointOnObject", 11, 1, -1))
sketch2.addConstraint(Sketcher.Constraint("Horizontal", 1, 2, 2, 2))
sketch2.addConstraint(Sketcher.Constraint("Horizontal", 4, 2, 5, 2))
sketch2.addConstraint(Sketcher.Constraint("Horizontal", 3, 2, 6, 2))
sketch2.addConstraint(Sketcher.Constraint("Horizontal", 2, 2, 7, 1))
sketch2.addConstraint(Sketcher.Constraint("Horizontal", 8, 1, 9, 1))
sketch2.addConstraint(Sketcher.Constraint("Horizontal", 7, 1, 10, 1))
sketch2.addConstraint(Sketcher.Constraint("Horizontal", 6, 2, 12, 1))
sketch2.addConstraint(Sketcher.Constraint("Horizontal", 13, 1, 14, 1))
sketch2.addConstraint(Sketcher.Constraint("Horizontal", 12, 1, 15, 1))
sketch2.addConstraint(Sketcher.Constraint("Vertical", 2, 2, 3, 2))
sketch2.addConstraint(Sketcher.Constraint("Vertical", 4, 2, 8, 1))
sketch2.addConstraint(Sketcher.Constraint("Vertical", 9, 1, 13, 1))
sketch2.addConstraint(Sketcher.Constraint("Radius", 0, 8.25))
sketch2.addConstraint(Sketcher.Constraint("Radius", 7, 7.85))
sketch2.addConstraint(Sketcher.Constraint("DistanceY", -1, 1, 1, 2, 1.0))
sketch2.addConstraint(Sketcher.Constraint("DistanceX", 4, 2, -1, 1, 1.0))
pad2 = body.newObject("PartDesign::Pad", "Pad001")
pad2.Profile = sketch2
pad2.Length = 12
pad2.Reversed = True

# Sketch on XY plane
sketch3 = body.newObject("Sketcher::SketchObject", "Sketch002")
sketch3.AttachmentSupport = (doc.getObject("XY_Plane"), [""])
sketch3.MapMode = "FlatFace"
sketch3.AttachmentOffset = App.Placement(App.Vector(0, 0, -11), App.Rotation())
sketch3.addGeometry(Part.Circle(App.Vector(0, 0, 0), App.Vector(0, 0, 1), 7.92), False)
sketch3.addGeometry(Part.BSplineCurve([App.Vector(-4.4, -0.4, 0), App.Vector(-4.133333, -0.4, 0), App.Vector(-3.866667, -0.4, 0), App.Vector(-3.6, -0.4, 0)], [4, 4], [0, 1], False, 3, [1, 1, 1, 1], False), False)
sketch3.addGeometry(Part.BSplineCurve([App.Vector(-4.4, -0.4, 0), App.Vector(-4.4, -0.133333, 0), App.Vector(-4.4, 0.133333, 0), App.Vector(-4.4, 0.4, 0)], [4, 4], [0, 1], False, 3, [1, 1, 1, 1], False), False)
sketch3.addGeometry(Part.BSplineCurve([App.Vector(-4.4, 0.4, 0), App.Vector(-4.133333, 0.4, 0), App.Vector(-3.866667, 0.4, 0), App.Vector(-3.6, 0.4, 0)], [4, 4], [0, 1], False, 3, [1, 1, 1, 1], False), False)
sketch3.addGeometry(Part.BSplineCurve([App.Vector(-3.6, -0.4, 0), App.Vector(-3.6, -0.133333, 0), App.Vector(-3.6, 0.133333, 0), App.Vector(-3.6, 0.4, 0)], [4, 4], [0, 1], False, 3, [1, 1, 1, 1], False), False)
sketch3.addGeometry(Part.BSplineCurve([App.Vector(4.4, -0.4, 0), App.Vector(4.4, -0.133333, 0), App.Vector(4.4, 0.133333, 0), App.Vector(4.4, 0.4, 0)], [4, 4], [0, 1], False, 3, [1, 1, 1, 1], False), False)
sketch3.addGeometry(Part.BSplineCurve([App.Vector(4.4, -0.4, 0), App.Vector(4.133333, -0.4, 0), App.Vector(3.866667, -0.4, 0), App.Vector(3.6, -0.4, 0)], [4, 4], [0, 1], False, 3, [1, 1, 1, 1], False), False)
sketch3.addGeometry(Part.BSplineCurve([App.Vector(3.6, -0.4, 0), App.Vector(3.6, -0.133333, 0), App.Vector(3.6, 0.133333, 0), App.Vector(3.6, 0.4, 0)], [4, 4], [0, 1], False, 3, [1, 1, 1, 1], False), False)
sketch3.addGeometry(Part.BSplineCurve([App.Vector(4.4, 0.4, 0), App.Vector(4.133333, 0.4, 0), App.Vector(3.866667, 0.4, 0), App.Vector(3.6, 0.4, 0)], [4, 4], [0, 1], False, 3, [1, 1, 1, 1], False), False)
sketch3.addConstraint(Sketcher.Constraint("Block", 1))
sketch3.addConstraint(Sketcher.Constraint("Block", 2))
sketch3.addConstraint(Sketcher.Constraint("Block", 3))
sketch3.addConstraint(Sketcher.Constraint("Block", 4))
sketch3.addConstraint(Sketcher.Constraint("Block", 5))
sketch3.addConstraint(Sketcher.Constraint("Block", 6))
sketch3.addConstraint(Sketcher.Constraint("Block", 7))
sketch3.addConstraint(Sketcher.Constraint("Block", 8))
sketch3.addConstraint(Sketcher.Constraint("Coincident", 0, 3, -1, 1))
sketch3.addConstraint(Sketcher.Constraint("Diameter", 0, 15.84))
pad3 = body.newObject("PartDesign::Pad", "Pad002")
pad3.Profile = sketch3
pad3.Length = 0.2
pad3.Reversed = True

# Sketch on XY plane
sketch4 = body.newObject("Sketcher::SketchObject", "Sketch003")
sketch4.AttachmentSupport = (doc.getObject("XY_Plane"), [""])
sketch4.MapMode = "FlatFace"
sketch4.AttachmentOffset = App.Placement(App.Vector(0, 0, -11), App.Rotation())
sketch4.addGeometry(Part.BSplineCurve([App.Vector(-4.4, -0.4, 0), App.Vector(-4.4, -0.133333, 0), App.Vector(-4.4, 0.133333, 0), App.Vector(-4.4, 0.4, 0)], [4, 4], [0, 1], False, 3, [1, 1, 1, 1], False), False)
sketch4.addGeometry(Part.BSplineCurve([App.Vector(-4.4, -0.4, 0), App.Vector(-4.133333, -0.4, 0), App.Vector(-3.866667, -0.4, 0), App.Vector(-3.6, -0.4, 0)], [4, 4], [0, 1], False, 3, [1, 1, 1, 1], False), False)
sketch4.addGeometry(Part.BSplineCurve([App.Vector(-3.6, -0.4, 0), App.Vector(-3.6, -0.133333, 0), App.Vector(-3.6, 0.133333, 0), App.Vector(-3.6, 0.4, 0)], [4, 4], [0, 1], False, 3, [1, 1, 1, 1], False), False)
sketch4.addGeometry(Part.BSplineCurve([App.Vector(-4.4, 0.4, 0), App.Vector(-4.133333, 0.4, 0), App.Vector(-3.866667, 0.4, 0), App.Vector(-3.6, 0.4, 0)], [4, 4], [0, 1], False, 3, [1, 1, 1, 1], False), False)
sketch4.addGeometry(Part.BSplineCurve([App.Vector(3.6, -0.4, 0), App.Vector(3.6, -0.133333, 0), App.Vector(3.6, 0.133333, 0), App.Vector(3.6, 0.4, 0)], [4, 4], [0, 1], False, 3, [1, 1, 1, 1], False), False)
sketch4.addGeometry(Part.BSplineCurve([App.Vector(4.4, -0.4, 0), App.Vector(4.133333, -0.4, 0), App.Vector(3.866667, -0.4, 0), App.Vector(3.6, -0.4, 0)], [4, 4], [0, 1], False, 3, [1, 1, 1, 1], False), False)
sketch4.addGeometry(Part.BSplineCurve([App.Vector(4.4, -0.4, 0), App.Vector(4.4, -0.133333, 0), App.Vector(4.4, 0.133333, 0), App.Vector(4.4, 0.4, 0)], [4, 4], [0, 1], False, 3, [1, 1, 1, 1], False), False)
sketch4.addGeometry(Part.BSplineCurve([App.Vector(4.4, 0.4, 0), App.Vector(4.133333, 0.4, 0), App.Vector(3.866667, 0.4, 0), App.Vector(3.6, 0.4, 0)], [4, 4], [0, 1], False, 3, [1, 1, 1, 1], False), False)
sketch4.addConstraint(Sketcher.Constraint("Block", 0))
sketch4.addConstraint(Sketcher.Constraint("Block", 1))
sketch4.addConstraint(Sketcher.Constraint("Block", 2))
sketch4.addConstraint(Sketcher.Constraint("Block", 3))
sketch4.addConstraint(Sketcher.Constraint("Block", 4))
sketch4.addConstraint(Sketcher.Constraint("Block", 5))
sketch4.addConstraint(Sketcher.Constraint("Block", 6))
sketch4.addConstraint(Sketcher.Constraint("Block", 7))
pad4 = body.newObject("PartDesign::Pad", "Pad003")
pad4.Profile = sketch4
pad4.Length = 2
pad4.Reversed = True

doc.recompute()
